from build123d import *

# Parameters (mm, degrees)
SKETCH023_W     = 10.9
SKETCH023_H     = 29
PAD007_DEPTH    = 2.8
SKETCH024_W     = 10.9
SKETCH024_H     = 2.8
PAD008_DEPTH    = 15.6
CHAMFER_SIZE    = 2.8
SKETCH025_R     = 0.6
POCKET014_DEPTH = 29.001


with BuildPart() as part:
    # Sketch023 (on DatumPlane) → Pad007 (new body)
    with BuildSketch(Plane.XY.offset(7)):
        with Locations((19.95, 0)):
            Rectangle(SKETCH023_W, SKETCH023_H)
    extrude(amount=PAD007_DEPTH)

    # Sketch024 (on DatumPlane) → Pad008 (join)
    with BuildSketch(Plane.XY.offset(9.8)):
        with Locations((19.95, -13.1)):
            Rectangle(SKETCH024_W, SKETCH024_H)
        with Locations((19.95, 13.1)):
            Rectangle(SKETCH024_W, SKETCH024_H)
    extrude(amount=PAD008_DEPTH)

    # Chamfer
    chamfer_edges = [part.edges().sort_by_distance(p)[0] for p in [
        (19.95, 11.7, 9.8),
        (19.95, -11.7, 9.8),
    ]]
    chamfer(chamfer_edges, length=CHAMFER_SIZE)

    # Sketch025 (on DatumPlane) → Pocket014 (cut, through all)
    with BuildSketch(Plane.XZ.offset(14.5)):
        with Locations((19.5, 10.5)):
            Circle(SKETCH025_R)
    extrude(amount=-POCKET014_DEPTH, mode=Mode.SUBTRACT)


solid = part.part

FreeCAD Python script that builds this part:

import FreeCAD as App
import Part
import Sketcher

V = App.Vector


def edges_at(feature, points):
    """Names of the edges that pass closest to the given points."""
    edges = feature.Shape.Edges
    near = lambda p: min(range(len(edges)), key=lambda i: edges[i].distToShape(Part.Vertex(*p))[0])
    return sorted({f"Edge{near(p) + 1}" for p in points})


def add_polygon(sketch, points):
    """Adds a closed chain of lines whose ends are joined by coincident constraints."""
    first, n = sketch.GeometryCount, len(points)
    for a, b in zip(points, points[1:] + points[:1]):
        sketch.addGeometry(Part.LineSegment(App.Vector(*a, 0), App.Vector(*b, 0)), False)
    for i in range(n):
        sketch.addConstraint(Sketcher.Constraint("Coincident", first + i, 2, first + (i + 1) % n, 1))

doc = App.newDocument("Part")
body = doc.addObject("PartDesign::Body", "Body")

# Sketch on XY plane
sketch1 = body.newObject("Sketcher::SketchObject", "Sketch")
sketch1.AttachmentSupport = (doc.getObject("XY_Plane"), [""])
sketch1.MapMode = "FlatFace"
sketch1.AttachmentOffset = App.Placement(V(0, 0, 7), App.Rotation())
add_polygon(sketch1, [(14, 14), (14, -14), (25, -14), (25, 14)])  # lines 0-3
sketch1.addConstraint(Sketcher.Constraint("Vertical", 0))
sketch1.addConstraint(Sketcher.Constraint("Horizontal", 1))
sketch1.addConstraint(Sketcher.Constraint("Vertical", 2))
sketch1.addConstraint(Sketcher.Constraint("Horizontal", 3))
sketch1.addConstraint(Sketcher.Constraint("DistanceY", 0, 2, 0, 1, 29.0))
sketch1.addConstraint(Sketcher.Constraint("DistanceX", 1, 1, 1, 2, 10.9))
sketch1.addConstraint(Sketcher.Constraint("DistanceX", -1, 1, 0, 2, 14.5))
sketch1.addConstraint(Sketcher.Constraint("DistanceY", 0, 2, -1, 1, 14.5))
pad1 = body.newObject("PartDesign::Pad", "Pad")
pad1.Profile = sketch1
pad1.Length = 2.8

# Sketch on XY plane
sketch2 = body.newObject("Sketcher::SketchObject", "Sketch001")
sketch2.AttachmentSupport = (doc.getObject("XY_Plane"), [""])
sketch2.MapMode = "FlatFace"
sketch2.AttachmentOffset = App.Placement(V(0, 0, 9.8), App.Rotation())
add_polygon(sketch2, [(14.5, -11.7), (14.5, -14.5), (25.4, -14.5), (25.4, -11.7)])  # lines 0-3
add_polygon(sketch2, [(14.5, 14.5), (14.5, 11.7), (25.4, 11.7), (25.4, 14.5)])  # lines 4-7
sketch2.addConstraint(Sketcher.Constraint("Vertical", 0))
sketch2.addConstraint(Sketcher.Constraint("Horizontal", 1))
sketch2.addConstraint(Sketcher.Constraint("Vertical", 2))
sketch2.addConstraint(Sketcher.Constraint("Horizontal", 3))
sketch2.addConstraint(Sketcher.Constraint("Vertical", 4))
sketch2.addConstraint(Sketcher.Constraint("Horizontal", 5))
sketch2.addConstraint(Sketcher.Constraint("Vertical", 6))
sketch2.addConstraint(Sketcher.Constraint("Horizontal", 7))
sketch2.addConstraint(Sketcher.Constraint("Symmetric", 3, 2, 4, 2, -1))
sketch2.addConstraint(Sketcher.Constraint("Symmetric", 1, 2, 6, 2, -1))
sketch2.addConstraint(Sketcher.Constraint("DistanceX", 1, 1, 1, 2, 10.9))
sketch2.addConstraint(Sketcher.Constraint("DistanceY", 0, 2, 0, 1, 2.8))
sketch2.addConstraint(Sketcher.Constraint("DistanceY", 1, 2, 6, 2, 29.0))
sketch2.addConstraint(Sketcher.Constraint("DistanceX", -1, 1, 0, 2, 14.5))
pad2 = body.newObject("PartDesign::Pad", "Pad001")
pad2.Profile = sketch2
pad2.Length = 15.6
doc.recompute()

chamfer = body.newObject("PartDesign::Chamfer", "Chamfer")
chamfer.Base = (pad2, edges_at(pad2, [(19.95, 11.7, 9.8), (19.95, -11.7, 9.8)]))
chamfer.Size = 2.8

# Sketch on XZ plane
sketch3 = body.newObject("Sketcher::SketchObject", "Sketch002")
sketch3.AttachmentSupport = (doc.getObject("XZ_Plane"), [""])
sketch3.MapMode = "FlatFace"
sketch3.AttachmentOffset = App.Placement(V(0, 0, 14.5), App.Rotation())
sketch3.addGeometry(Part.Circle(V(19.5, 10.5, 0), V(0, 0, 1), 0.6), False)
sketch3.addConstraint(Sketcher.Constraint("Diameter", 0, 1.2))
sketch3.addConstraint(Sketcher.Constraint("DistanceX", -1, 1, 0, 3, 19.5))
sketch3.addConstraint(Sketcher.Constraint("DistanceY", -1, 1, 0, 3, 10.5))
pocket1 = body.newObject("PartDesign::Pocket", "Pocket")
pocket1.Profile = sketch3
pocket1.Type = "ThroughAll"

doc.recompute()
